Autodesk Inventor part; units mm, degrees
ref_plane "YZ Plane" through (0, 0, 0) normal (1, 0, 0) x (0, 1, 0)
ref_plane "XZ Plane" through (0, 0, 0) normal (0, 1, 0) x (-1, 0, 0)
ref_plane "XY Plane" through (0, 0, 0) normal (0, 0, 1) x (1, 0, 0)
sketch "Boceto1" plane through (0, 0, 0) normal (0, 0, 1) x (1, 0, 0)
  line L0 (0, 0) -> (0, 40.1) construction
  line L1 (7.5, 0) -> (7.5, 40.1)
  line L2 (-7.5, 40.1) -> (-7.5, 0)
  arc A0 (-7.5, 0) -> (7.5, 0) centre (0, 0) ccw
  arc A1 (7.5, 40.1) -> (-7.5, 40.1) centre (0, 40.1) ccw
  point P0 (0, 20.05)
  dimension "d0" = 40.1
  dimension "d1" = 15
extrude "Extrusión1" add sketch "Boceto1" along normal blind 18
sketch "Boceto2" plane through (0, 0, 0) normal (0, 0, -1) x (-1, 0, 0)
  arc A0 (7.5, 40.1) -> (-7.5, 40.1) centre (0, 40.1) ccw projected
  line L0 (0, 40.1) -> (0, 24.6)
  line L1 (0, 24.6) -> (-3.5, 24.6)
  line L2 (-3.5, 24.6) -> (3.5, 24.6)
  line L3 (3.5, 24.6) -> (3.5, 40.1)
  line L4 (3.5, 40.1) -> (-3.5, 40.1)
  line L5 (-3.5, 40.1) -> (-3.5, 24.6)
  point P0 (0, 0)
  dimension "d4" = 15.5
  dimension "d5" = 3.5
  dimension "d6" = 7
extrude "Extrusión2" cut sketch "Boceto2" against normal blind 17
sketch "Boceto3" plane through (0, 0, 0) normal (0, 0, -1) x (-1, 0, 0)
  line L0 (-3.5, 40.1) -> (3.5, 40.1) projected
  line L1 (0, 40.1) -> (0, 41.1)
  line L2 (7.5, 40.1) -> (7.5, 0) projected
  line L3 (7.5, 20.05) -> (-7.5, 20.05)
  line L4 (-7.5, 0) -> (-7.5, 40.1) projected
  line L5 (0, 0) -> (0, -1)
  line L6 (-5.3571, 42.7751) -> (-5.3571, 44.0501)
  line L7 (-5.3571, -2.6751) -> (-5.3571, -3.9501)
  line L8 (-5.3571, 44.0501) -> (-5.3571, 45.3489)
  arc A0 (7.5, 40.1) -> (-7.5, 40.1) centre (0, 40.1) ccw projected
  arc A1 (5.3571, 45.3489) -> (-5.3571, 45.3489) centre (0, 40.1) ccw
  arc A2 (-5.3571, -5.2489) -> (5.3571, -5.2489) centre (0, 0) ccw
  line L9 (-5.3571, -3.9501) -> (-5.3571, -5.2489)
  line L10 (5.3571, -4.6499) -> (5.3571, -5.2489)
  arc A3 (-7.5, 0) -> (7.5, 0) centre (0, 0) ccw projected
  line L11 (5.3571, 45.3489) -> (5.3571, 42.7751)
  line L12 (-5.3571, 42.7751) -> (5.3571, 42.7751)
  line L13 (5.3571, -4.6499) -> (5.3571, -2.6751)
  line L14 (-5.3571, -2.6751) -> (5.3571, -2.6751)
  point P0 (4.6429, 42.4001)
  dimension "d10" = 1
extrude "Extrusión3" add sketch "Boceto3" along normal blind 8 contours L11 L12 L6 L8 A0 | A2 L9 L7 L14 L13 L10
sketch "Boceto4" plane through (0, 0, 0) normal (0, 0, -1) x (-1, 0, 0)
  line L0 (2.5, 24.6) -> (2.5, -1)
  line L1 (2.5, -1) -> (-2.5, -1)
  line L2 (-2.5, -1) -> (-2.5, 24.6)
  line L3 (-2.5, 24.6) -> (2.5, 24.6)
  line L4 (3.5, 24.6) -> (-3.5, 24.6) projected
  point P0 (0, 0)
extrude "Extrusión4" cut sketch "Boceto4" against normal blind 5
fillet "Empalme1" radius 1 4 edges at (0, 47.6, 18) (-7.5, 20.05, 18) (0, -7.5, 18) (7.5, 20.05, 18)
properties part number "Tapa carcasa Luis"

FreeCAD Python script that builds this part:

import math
import FreeCAD as App
import Part
import Sketcher

V = App.Vector


def edges_at(feature, points):
    """Names of the edges that pass closest to the given points."""
    edges = feature.Shape.Edges
    near = lambda p: min(range(len(edges)), key=lambda i: edges[i].distToShape(Part.Vertex(*p))[0])
    return sorted({f"Edge{near(p) + 1}" for p in points})


def add_polygon(sketch, points):
    """Adds a closed chain of lines whose ends are joined by coincident constraints."""
    first, n = sketch.GeometryCount, len(points)
    for a, b in zip(points, points[1:] + points[:1]):
        sketch.addGeometry(Part.LineSegment(App.Vector(*a, 0), App.Vector(*b, 0)), False)
    for i in range(n):
        sketch.addConstraint(Sketcher.Constraint("Coincident", first + i, 2, first + (i + 1) % n, 1))

doc = App.newDocument("Part")
body = doc.addObject("PartDesign::Body", "Body")

# Sketch on XY plane
sketch1 = body.newObject("Sketcher::SketchObject", "Sketch")
sketch1.AttachmentSupport = (doc.getObject("XY_Plane"), [""])
sketch1.MapMode = "FlatFace"
sketch1.addGeometry([
    Part.ArcOfCircle(Part.Circle(V(0, 0, 0), V(0, 0, 1), 8), math.radians(180), math.radians(360)),
    Part.LineSegment(V(8, 0, 0), V(8, 40, 0)),
    Part.ArcOfCircle(Part.Circle(V(0, 40, 0), V(0, 0, 1), 8), math.radians(0), math.radians(180)),
    Part.LineSegment(V(-8, 40, 0), V(-8, 0, 0)),
], False)
sketch1.addConstraint([
    Sketcher.Constraint("Tangent", 0, 2, 1, 1),
    Sketcher.Constraint("Tangent", 1, 2, 2, 1),
    Sketcher.Constraint("Tangent", 2, 2, 3, 1),
    Sketcher.Constraint("Tangent", 3, 2, 0, 1),
    Sketcher.Constraint("Vertical", 1),
    Sketcher.Constraint("Vertical", 3),
    Sketcher.Constraint("Coincident", 0, 3, -1, 1),
    Sketcher.Constraint("Radius", 0, 7.5),
    Sketcher.Constraint("DistanceY", 1, 1, 1, 2, 40.1),
])
pad1 = body.newObject("PartDesign::Pad", "Pad")
pad1.Profile = sketch1
pad1.Length = 18

# Sketch on XY plane
sketch2 = body.newObject("Sketcher::SketchObject", "Sketch001")
sketch2.AttachmentSupport = (doc.getObject("XY_Plane"), [""])
sketch2.MapMode = "FlatFace"
add_polygon(sketch2, [(-4, 40), (4, 40), (4, 25), (-4, 25)])  # lines 0-3
sketch2.addConstraint([
    Sketcher.Constraint("Horizontal", 0),
    Sketcher.Constraint("Vertical", 1),
    Sketcher.Constraint("Horizontal", 2),
    Sketcher.Constraint("Vertical", 3),
    Sketcher.Constraint("DistanceX", 0, 1, 0, 2, 7.0),
    Sketcher.Constraint("DistanceY", 1, 2, 1, 1, 15.5),
    Sketcher.Constraint("DistanceX", -1, 1, 0, 2, 3.5),
    Sketcher.Constraint("DistanceY", -1, 1, 0, 2, 40.1),
])
pocket1 = body.newObject("PartDesign::Pocket", "Pocket")
pocket1.Profile = sketch2
pocket1.Length = 17
pocket1.Reversed = True

# Sketch on XY plane
sketch3 = body.newObject("Sketcher::SketchObject", "Sketch002")
sketch3.AttachmentSupport = (doc.getObject("XY_Plane"), [""])
sketch3.MapMode = "FlatFace"
sketch3.addGeometry([
    Part.LineSegment(V(-5.4, 42.8, 0), V(-5.4, 45.3, 0)),  # 0
    Part.ArcOfCircle(Part.Circle(V(0, 40.1, 0), V(0, 0, 1), 7.5), math.radians(44), math.radians(136)),  # 1
    Part.LineSegment(V(5.4, 45.3, 0), V(5.4, 42.8, 0)),  # 2
    Part.LineSegment(V(5.4, 42.8, 0), V(-5.4, 42.8, 0)),  # 3
    Part.ArcOfCircle(Part.Circle(V(0, 0, 0), V(0, 0, 1), 7.5), math.radians(-136), math.radians(-44)),  # 4
    Part.LineSegment(V(-5.4, -5.2, 0), V(-5.4, -2.7, 0)),  # 5
    Part.LineSegment(V(-5.4, -2.7, 0), V(5.4, -2.7, 0)),  # 6
    Part.LineSegment(V(5.4, -2.7, 0), V(5.4, -5.2, 0)),  # 7
], False)
sketch3.addConstraint([
    Sketcher.Constraint("Coincident", 0, 2, 1, 2),
    Sketcher.Constraint("Coincident", 1, 1, 2, 1),
    Sketcher.Constraint("Coincident", 2, 2, 3, 1),
    Sketcher.Constraint("Coincident", 3, 2, 0, 1),
    Sketcher.Constraint("Coincident", 4, 1, 5, 1),
    Sketcher.Constraint("Coincident", 5, 2, 6, 1),
    Sketcher.Constraint("Coincident", 6, 2, 7, 1),
    Sketcher.Constraint("Coincident", 7, 2, 4, 2),
    Sketcher.Constraint("Vertical", 0),
    Sketcher.Constraint("Vertical", 2),
    Sketcher.Constraint("Horizontal", 3),
    Sketcher.Constraint("Vertical", 5),
    Sketcher.Constraint("Horizontal", 6),
    Sketcher.Constraint("Vertical", 7),
    Sketcher.Constraint("Coincident", 4, 3, -1, 1),
    Sketcher.Constraint("Equal", 1, 4),
    Sketcher.Constraint("Symmetric", 0, 2, 1, 1, -2),
    Sketcher.Constraint("Horizontal", 4, 1, 7, 2),
    Sketcher.Constraint("Vertical", 3, 2, 4, 1),
    Sketcher.Constraint("Equal", 2, 5),
    Sketcher.Constraint("Radius", 1, 7.5),
    Sketcher.Constraint("DistanceY", -1, 1, 1, 3, 40.1),
    Sketcher.Constraint("DistanceX", 3, 2, 3, 1, 10.7142),
    Sketcher.Constraint("DistanceY", 0, 1, 0, 2, 2.5738),
])
pad2 = body.newObject("PartDesign::Pad", "Pad001")
pad2.Profile = sketch3
pad2.Length = 8
pad2.Reversed = True

# Sketch on XY plane
sketch4 = body.newObject("Sketcher::SketchObject", "Sketch003")
sketch4.AttachmentSupport = (doc.getObject("XY_Plane"), [""])
sketch4.MapMode = "FlatFace"
add_polygon(sketch4, [(-2, -1), (-2, 25), (2, 25), (2, -1)])  # lines 0-3
sketch4.addConstraint([
    Sketcher.Constraint("Vertical", 0),
    Sketcher.Constraint("Horizontal", 1),
    Sketcher.Constraint("Vertical", 2),
    Sketcher.Constraint("Horizontal", 3),
    Sketcher.Constraint("DistanceX", 1, 1, 1, 2, 5.0),
    Sketcher.Constraint("DistanceY", 0, 1, 0, 2, 25.6),
    Sketcher.Constraint("DistanceY", 2, 2, -1, 1, 1.0),
    Sketcher.Constraint("DistanceX", 0, 2, -1, 1, 2.5),
])
pocket2 = body.newObject("PartDesign::Pocket", "Pocket001")
pocket2.Profile = sketch4
pocket2.Length = 5
pocket2.Reversed = True
doc.recompute()

fillet = body.newObject("PartDesign::Fillet", "Fillet")
fillet.Base = (pocket2, edges_at(pocket2, [
    (0, 47.6, 18),
    (-7.5, 20.05, 18),
    (0, -7.5, 18),
    (7.5, 20.05, 18),
]))
fillet.Radius = 1

doc.recompute()
